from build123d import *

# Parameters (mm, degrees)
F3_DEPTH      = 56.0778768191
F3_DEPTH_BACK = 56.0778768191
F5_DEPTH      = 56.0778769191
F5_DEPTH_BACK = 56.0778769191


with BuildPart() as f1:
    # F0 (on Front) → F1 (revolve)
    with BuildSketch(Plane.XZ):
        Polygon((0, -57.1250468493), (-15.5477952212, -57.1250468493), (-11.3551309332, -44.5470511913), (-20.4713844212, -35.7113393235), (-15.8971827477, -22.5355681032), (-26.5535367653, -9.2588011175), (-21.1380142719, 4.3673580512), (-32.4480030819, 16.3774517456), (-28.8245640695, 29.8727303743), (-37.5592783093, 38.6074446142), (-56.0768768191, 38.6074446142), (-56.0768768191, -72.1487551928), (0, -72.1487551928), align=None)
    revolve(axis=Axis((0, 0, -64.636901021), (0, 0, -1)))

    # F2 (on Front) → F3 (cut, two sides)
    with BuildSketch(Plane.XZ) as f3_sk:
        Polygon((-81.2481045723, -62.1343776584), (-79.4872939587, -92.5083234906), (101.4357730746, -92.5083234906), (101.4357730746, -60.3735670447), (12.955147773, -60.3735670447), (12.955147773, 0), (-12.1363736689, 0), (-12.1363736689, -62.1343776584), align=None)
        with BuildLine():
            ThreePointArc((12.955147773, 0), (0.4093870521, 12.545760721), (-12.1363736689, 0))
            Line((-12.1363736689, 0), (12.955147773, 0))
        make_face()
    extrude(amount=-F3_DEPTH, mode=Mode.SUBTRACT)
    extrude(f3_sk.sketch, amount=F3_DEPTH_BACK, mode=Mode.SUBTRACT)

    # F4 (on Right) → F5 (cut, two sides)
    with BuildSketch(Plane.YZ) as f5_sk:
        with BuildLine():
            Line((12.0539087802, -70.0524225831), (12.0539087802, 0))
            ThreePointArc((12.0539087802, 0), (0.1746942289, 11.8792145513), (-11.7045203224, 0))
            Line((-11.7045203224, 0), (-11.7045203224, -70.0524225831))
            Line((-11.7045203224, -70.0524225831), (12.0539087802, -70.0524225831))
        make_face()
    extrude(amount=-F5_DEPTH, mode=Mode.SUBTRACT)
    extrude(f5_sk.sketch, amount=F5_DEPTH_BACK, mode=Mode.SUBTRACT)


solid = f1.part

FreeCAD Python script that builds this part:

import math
import FreeCAD as App
import Part
import Sketcher

V = App.Vector
Q = App.Units.Quantity


def add_polygon(sketch, points):
    """Adds a closed chain of lines whose ends are joined by coincident constraints."""
    first, n = sketch.GeometryCount, len(points)
    for a, b in zip(points, points[1:] + points[:1]):
        sketch.addGeometry(Part.LineSegment(App.Vector(*a, 0), App.Vector(*b, 0)), False)
    for i in range(n):
        sketch.addConstraint(Sketcher.Constraint("Coincident", first + i, 2, first + (i + 1) % n, 1))

doc = App.newDocument("Part")
body = doc.addObject("PartDesign::Body", "Body")

# Sketch on XZ plane
sketch1 = doc.addObject("Sketcher::SketchObject", "Sketch")
body.addObject(sketch1)
sketch1.AttachmentSupport = (doc.XZ_Plane, [""])
sketch1.MapMode = "FlatFace"
add_polygon(sketch1, [(0, -57), (-16, -57), (-11, -45), (-20, -36), (-16, -23), (-27, -9), (-21, 4), (-32, 16), (-29, 30), (-38, 39), (-56, 39), (-56, -72), (0, -72)])  # lines 0-12
sketch1.addConstraint(Sketcher.Constraint("Horizontal", 0))
sketch1.addConstraint(Sketcher.Constraint("Horizontal", 9))
sketch1.addConstraint(Sketcher.Constraint("Vertical", 10))
sketch1.addConstraint(Sketcher.Constraint("Horizontal", 11))
sketch1.addConstraint(Sketcher.Constraint("Vertical", 12))
sketch1.addConstraint(Sketcher.Constraint("PointOnObject", 11, 2, -2))
sketch1.addConstraint(Sketcher.Constraint("Angle", 8, Q("135 deg")))
sketch1.addConstraint(Sketcher.Constraint("DistanceX", 9, 2, 9, 1, Q("18.517599 mm")))
sketch1.addConstraint(Sketcher.Constraint("DistanceY", 10, 2, 10, 1, Q("110.7562 mm")))
sketch1.addConstraint(Sketcher.Constraint("DistanceY", 12, 1, 12, 2, Q("15.023708 mm")))
sketch1.addConstraint(Sketcher.Constraint("DistanceY", 4, 2, -1, 1, Q("9.258801 mm")))
sketch1.addConstraint(Sketcher.Constraint("DistanceX", 2, 2, 3, 2, Q("4.574202 mm")))
sketch1.addConstraint(Sketcher.Constraint("DistanceY", 3, 2, 7, 2, Q("52.408298 mm")))
sketch1.addConstraint(Sketcher.Constraint("Distance", 1, Q("13.258371 mm")))
sketch1.addConstraint(Sketcher.Constraint("Distance", 5, Q("14.662882 mm")))
sketch1.addConstraint(Sketcher.Constraint("Distance", 8, Q("12.352751 mm")))
sketch1.addConstraint(Sketcher.Constraint("DistanceX", 0, 2, 0, 1, Q("15.547795 mm")))
sketch1.addConstraint(Sketcher.Constraint("DistanceX", 11, 1, 11, 2, Q("56.076877 mm")))
sketch1.addConstraint(Sketcher.Constraint("DistanceX", 1, 2, -1, 1, Q("11.355131 mm")))
sketch1.addConstraint(Sketcher.Constraint("DistanceY", 1, 2, -1, 1, Q("44.547051 mm")))
sketch1.addConstraint(Sketcher.Constraint("DistanceY", 2, 2, -1, 1, Q("35.711339 mm")))
sketch1.addConstraint(Sketcher.Constraint("DistanceY", -1, 1, 5, 2, Q("4.367358 mm")))
sketch1.addConstraint(Sketcher.Constraint("DistanceY", -1, 1, 6, 2, Q("16.377452 mm")))
sketch1.addConstraint(Sketcher.Constraint("DistanceX", 2, 2, 0, 2, Q("4.923589 mm")))
sketch1.addConstraint(Sketcher.Constraint("DistanceX", 4, 2, 0, 2, Q("11.005742 mm")))
sketch1.addConstraint(Sketcher.Constraint("DistanceX", 6, 2, 5, 2, Q("11.309989 mm")))
revolution = doc.addObject("PartDesign::Revolution", "Revolution")
body.addObject(revolution)
revolution.Profile = sketch1
revolution.ReferenceAxis = (sketch1, ["V_Axis"])
revolution.Angle = 360

# Sketch on XZ plane
sketch2 = doc.addObject("Sketcher::SketchObject", "Sketch001")
body.addObject(sketch2)
sketch2.AttachmentSupport = (doc.XZ_Plane, [""])
sketch2.MapMode = "FlatFace"
sketch2.addGeometry(Part.LineSegment(V(-81, -62, 0), V(-79, -93, 0)), False)
sketch2.addGeometry(Part.LineSegment(V(-79, -93, 0), V(101, -93, 0)), False)
sketch2.addGeometry(Part.LineSegment(V(101, -93, 0), V(101, -60, 0)), False)
sketch2.addGeometry(Part.LineSegment(V(101, -60, 0), V(13, -60, 0)), False)
sketch2.addGeometry(Part.LineSegment(V(13, -60, 0), V(13, 0, 0)), False)
sketch2.addGeometry(Part.ArcOfCircle(Part.Circle(V(0, 0, 0), V(0, 0, 1), 13), math.radians(0), math.radians(180)), False)
sketch2.addGeometry(Part.LineSegment(V(-12, 0, 0), V(-12, -62, 0)), False)
sketch2.addGeometry(Part.LineSegment(V(-12, -62, 0), V(-81, -62, 0)), False)
sketch2.addConstraint(Sketcher.Constraint("Coincident", 0, 2, 1, 1))
sketch2.addConstraint(Sketcher.Constraint("Coincident", 1, 2, 2, 1))
sketch2.addConstraint(Sketcher.Constraint("Coincident", 2, 2, 3, 1))
sketch2.addConstraint(Sketcher.Constraint("Coincident", 3, 2, 4, 1))
sketch2.addConstraint(Sketcher.Constraint("Tangent", 4, 2, 5, 1))
sketch2.addConstraint(Sketcher.Constraint("Tangent", 5, 2, 6, 1))
sketch2.addConstraint(Sketcher.Constraint("Coincident", 6, 2, 7, 1))
sketch2.addConstraint(Sketcher.Constraint("Coincident", 7, 2, 0, 1))
sketch2.addConstraint(Sketcher.Constraint("Horizontal", 1))
sketch2.addConstraint(Sketcher.Constraint("Vertical", 2))
sketch2.addConstraint(Sketcher.Constraint("Horizontal", 3))
sketch2.addConstraint(Sketcher.Constraint("Vertical", 4))
sketch2.addConstraint(Sketcher.Constraint("Vertical", 6))
sketch2.addConstraint(Sketcher.Constraint("Horizontal", 7))
sketch2.addConstraint(Sketcher.Constraint("PointOnObject", 5, 3, -1))
sketch2.addConstraint(Sketcher.Constraint("Radius", 5, Q("12.545761 mm")))
sketch2.addConstraint(Sketcher.Constraint("DistanceX", 7, 2, 7, 1, Q("69.111731 mm")))
sketch2.addConstraint(Sketcher.Constraint("Distance", 0, Q("30.424941 mm")))
sketch2.addConstraint(Sketcher.Constraint("DistanceX", 1, 1, 1, 2, Q("180.923067 mm")))
sketch2.addConstraint(Sketcher.Constraint("DistanceX", 3, 2, 3, 1, Q("88.480625 mm")))
sketch2.addConstraint(Sketcher.Constraint("DistanceY", 2, 1, 2, 2, Q("32.134756 mm")))
sketch2.addConstraint(Sketcher.Constraint("DistanceY", 4, 1, 4, 2, Q("60.373567 mm")))
sketch2.addConstraint(Sketcher.Constraint("DistanceX", -1, 1, 5, 3, Q("0.409387 mm")))
pocket1 = doc.addObject("PartDesign::Pocket", "Pocket")
body.addObject(pocket1)
pocket1.Profile = sketch2
pocket1.Type = "ThroughAll"
pocket1.Midplane = True

# Sketch on YZ plane
sketch3 = doc.addObject("Sketcher::SketchObject", "Sketch002")
body.addObject(sketch3)
sketch3.AttachmentSupport = (doc.YZ_Plane, [""])
sketch3.MapMode = "FlatFace"
sketch3.addGeometry(Part.LineSegment(V(12, -70, 0), V(12, 0, 0)), False)
sketch3.addGeometry(Part.ArcOfCircle(Part.Circle(V(0, 0, 0), V(0, 0, 1), 12), math.radians(0), math.radians(180)), False)
sketch3.addGeometry(Part.LineSegment(V(-12, 0, 0), V(-12, -70, 0)), False)
sketch3.addGeometry(Part.LineSegment(V(-12, -70, 0), V(12, -70, 0)), False)
sketch3.addConstraint(Sketcher.Constraint("Tangent", 0, 2, 1, 1))
sketch3.addConstraint(Sketcher.Constraint("Tangent", 1, 2, 2, 1))
sketch3.addConstraint(Sketcher.Constraint("Coincident", 2, 2, 3, 1))
sketch3.addConstraint(Sketcher.Constraint("Coincident", 3, 2, 0, 1))
sketch3.addConstraint(Sketcher.Constraint("Vertical", 0))
sketch3.addConstraint(Sketcher.Constraint("Vertical", 2))
sketch3.addConstraint(Sketcher.Constraint("Horizontal", 3))
sketch3.addConstraint(Sketcher.Constraint("PointOnObject", 1, 3, -1))
sketch3.addConstraint(Sketcher.Constraint("Radius", 1, Q("11.879215 mm")))
sketch3.addConstraint(Sketcher.Constraint("DistanceY", 0, 1, 0, 2, Q("70.052423 mm")))
sketch3.addConstraint(Sketcher.Constraint("DistanceX", -1, 1, 0, 2, Q("12.053909 mm")))
pocket2 = doc.addObject("PartDesign::Pocket", "Pocket001")
body.addObject(pocket2)
pocket2.Profile = sketch3
pocket2.Type = "ThroughAll"
pocket2.Midplane = True

doc.recompute()
